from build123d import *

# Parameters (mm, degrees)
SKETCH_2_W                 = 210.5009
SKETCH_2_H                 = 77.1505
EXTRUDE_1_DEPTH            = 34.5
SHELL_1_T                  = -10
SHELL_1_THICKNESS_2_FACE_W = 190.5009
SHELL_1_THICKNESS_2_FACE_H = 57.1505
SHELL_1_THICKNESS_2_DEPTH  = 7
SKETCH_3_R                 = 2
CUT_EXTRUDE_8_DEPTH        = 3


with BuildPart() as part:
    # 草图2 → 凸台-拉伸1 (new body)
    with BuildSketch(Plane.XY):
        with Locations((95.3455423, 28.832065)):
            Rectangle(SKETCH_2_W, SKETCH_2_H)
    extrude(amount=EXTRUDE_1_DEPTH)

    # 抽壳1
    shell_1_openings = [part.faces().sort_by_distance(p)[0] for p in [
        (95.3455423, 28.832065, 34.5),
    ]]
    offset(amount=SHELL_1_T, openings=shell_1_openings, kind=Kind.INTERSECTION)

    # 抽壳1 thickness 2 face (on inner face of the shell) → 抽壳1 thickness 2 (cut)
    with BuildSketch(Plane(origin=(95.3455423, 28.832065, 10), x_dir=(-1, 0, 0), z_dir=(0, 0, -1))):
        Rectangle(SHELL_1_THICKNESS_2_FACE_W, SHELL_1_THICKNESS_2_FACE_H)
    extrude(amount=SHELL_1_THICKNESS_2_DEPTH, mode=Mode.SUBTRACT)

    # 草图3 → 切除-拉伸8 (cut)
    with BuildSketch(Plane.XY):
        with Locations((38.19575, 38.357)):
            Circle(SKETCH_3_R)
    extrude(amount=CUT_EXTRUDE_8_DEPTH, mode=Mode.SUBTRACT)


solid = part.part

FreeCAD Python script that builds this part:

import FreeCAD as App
import Part
import Sketcher

V = App.Vector


def faces_at(feature, points):
    """Names of the faces that lie closest to the given points."""
    faces = feature.Shape.Faces
    near = lambda p: min(range(len(faces)), key=lambda i: faces[i].distToShape(Part.Vertex(*p))[0])
    return sorted({f"Face{near(p) + 1}" for p in points})

doc = App.newDocument("Part")
body = doc.addObject("PartDesign::Body", "Body")

# Sketch on XY plane
sketch1 = body.newObject("Sketcher::SketchObject", "Sketch")
sketch1.AttachmentSupport = (doc.getObject("XY_Plane"), [""])
sketch1.MapMode = "FlatFace"
sketch1.addGeometry([
    Part.LineSegment(V(-9.904908, 67.407315, 0), V(-9.904908, -9.743185, 0)),
    Part.LineSegment(V(-9.904908, -9.743185, 0), V(200.595992, -9.743185, 0)),
    Part.LineSegment(V(200.595992, -9.743185, 0), V(200.595992, 67.407315, 0)),
    Part.LineSegment(V(200.595992, 67.407315, 0), V(-9.904908, 67.407315, 0)),
], False)
sketch1.addConstraint([
    Sketcher.Constraint("Coincident", 0, 2, 1, 1),
    Sketcher.Constraint("Coincident", 1, 2, 2, 1),
    Sketcher.Constraint("Coincident", 2, 2, 3, 1),
    Sketcher.Constraint("Coincident", 3, 2, 0, 1),
    Sketcher.Constraint("Vertical", 0),
    Sketcher.Constraint("Horizontal", 1),
    Sketcher.Constraint("Vertical", 2),
    Sketcher.Constraint("Horizontal", 3),
    Sketcher.Constraint("DistanceX", 1, 1, 1, 2, 210.5009),
    Sketcher.Constraint("DistanceY", 0, 2, 0, 1, 77.1505),
    Sketcher.Constraint("DistanceX", 0, 2, -1, 1, 9.904908),
    Sketcher.Constraint("DistanceY", 0, 2, -1, 1, 9.743185),
])
pad1 = body.newObject("PartDesign::Pad", "Pad")
pad1.Profile = sketch1
pad1.Length = 34.5
doc.recompute()

thickness = body.newObject("PartDesign::Thickness", "Thickness")
thickness.Base = (pad1, faces_at(pad1, [(95.346, 28.832, 34.5)]))
thickness.Value = 10
thickness.Reversed = True
thickness.Join = "Intersection"

# Sketch on XY plane
sketch2 = body.newObject("Sketcher::SketchObject", "Sketch001")
sketch2.AttachmentSupport = (doc.getObject("XY_Plane"), [""])
sketch2.MapMode = "FlatFace"
sketch2.AttachmentOffset = App.Placement(V(0, 0, 10), App.Rotation())
sketch2.addGeometry([
    Part.LineSegment(V(190.595992, 57.407315, 0), V(190.595992, 0.256815, 0)),
    Part.LineSegment(V(190.595992, 0.256815, 0), V(0.095092, 0.256815, 0)),
    Part.LineSegment(V(0.095092, 0.256815, 0), V(0.095092, 57.407315, 0)),
    Part.LineSegment(V(0.095092, 57.407315, 0), V(190.595992, 57.407315, 0)),
], False)
sketch2.addConstraint([
    Sketcher.Constraint("Coincident", 0, 2, 1, 1),
    Sketcher.Constraint("Coincident", 1, 2, 2, 1),
    Sketcher.Constraint("Coincident", 2, 2, 3, 1),
    Sketcher.Constraint("Coincident", 3, 2, 0, 1),
    Sketcher.Constraint("Vertical", 0),
    Sketcher.Constraint("Horizontal", 1),
    Sketcher.Constraint("Vertical", 2),
    Sketcher.Constraint("Horizontal", 3),
    Sketcher.Constraint("DistanceX", 1, 2, 1, 1, 190.5009),
    Sketcher.Constraint("DistanceY", 0, 2, 0, 1, 57.1505),
    Sketcher.Constraint("DistanceX", -1, 1, 0, 2, 190.595992),
    Sketcher.Constraint("DistanceY", -1, 1, 0, 2, 0.256815),
])
pocket1 = body.newObject("PartDesign::Pocket", "Pocket")
pocket1.Profile = sketch2
pocket1.Length = 7

# Sketch on XY plane
sketch3 = body.newObject("Sketcher::SketchObject", "Sketch002")
sketch3.AttachmentSupport = (doc.getObject("XY_Plane"), [""])
sketch3.MapMode = "FlatFace"
sketch3.addGeometry(Part.Circle(V(38.19575, 38.357, 0), V(0, 0, 1), 2), False)
sketch3.addConstraint([
    Sketcher.Constraint("Diameter", 0, 4.0),
    Sketcher.Constraint("DistanceY", -1, 1, 0, 3, 38.357),
    Sketcher.Constraint("DistanceX", -1, 1, 0, 3, 38.19575),
])
pocket2 = body.newObject("PartDesign::Pocket", "Pocket001")
pocket2.Profile = sketch3
pocket2.Length = 3
pocket2.Reversed = True

doc.recompute()
